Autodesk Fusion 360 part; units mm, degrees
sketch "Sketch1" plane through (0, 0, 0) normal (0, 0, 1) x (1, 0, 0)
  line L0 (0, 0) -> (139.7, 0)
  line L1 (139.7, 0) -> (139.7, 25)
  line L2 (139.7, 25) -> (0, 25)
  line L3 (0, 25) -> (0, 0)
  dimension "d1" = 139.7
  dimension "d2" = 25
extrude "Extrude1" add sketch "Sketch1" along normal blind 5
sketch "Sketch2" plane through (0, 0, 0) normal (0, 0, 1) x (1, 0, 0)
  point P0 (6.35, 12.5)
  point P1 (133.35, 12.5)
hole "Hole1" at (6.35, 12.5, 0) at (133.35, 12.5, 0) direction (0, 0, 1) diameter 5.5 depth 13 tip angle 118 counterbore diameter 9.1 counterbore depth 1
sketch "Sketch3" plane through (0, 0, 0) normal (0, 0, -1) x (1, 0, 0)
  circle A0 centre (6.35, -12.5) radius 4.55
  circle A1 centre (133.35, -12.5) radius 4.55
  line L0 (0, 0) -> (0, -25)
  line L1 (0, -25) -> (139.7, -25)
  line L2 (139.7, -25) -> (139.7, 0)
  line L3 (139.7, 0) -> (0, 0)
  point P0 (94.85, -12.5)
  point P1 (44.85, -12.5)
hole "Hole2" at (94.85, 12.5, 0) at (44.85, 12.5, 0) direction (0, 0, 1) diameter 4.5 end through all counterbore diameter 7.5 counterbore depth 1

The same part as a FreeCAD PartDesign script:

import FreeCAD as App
import Part
import Sketcher

V = App.Vector
Q = App.Units.Quantity


def add_polygon(sketch, points):
    """Adds a closed chain of lines whose ends are joined by coincident constraints."""
    first, n = sketch.GeometryCount, len(points)
    for a, b in zip(points, points[1:] + points[:1]):
        sketch.addGeometry(Part.LineSegment(App.Vector(*a, 0), App.Vector(*b, 0)), False)
    for i in range(n):
        sketch.addConstraint(Sketcher.Constraint("Coincident", first + i, 2, first + (i + 1) % n, 1))

doc = App.newDocument("Part")
params = doc.addObject("Spreadsheet::Sheet", "Params")
for row, (alias, value) in enumerate([
    ("sketch1_height", "25 mm"),
    ("sketch1_width", "139.7 mm"),
    ("pad1_length", "5 mm"),
    ("sketch2_diameter", "5.5 mm"),
    ("hole_diameter", "5.5 mm"),
    ("hole_depth", "13 mm"),
    ("hole_cbore_diameter", "9.1 mm"),
    ("hole_cbore_depth", "1 mm"),
    ("sketch3_diameter", "4.5 mm"),
    ("hole2_diameter", "4.5 mm"),
    ("hole2_cbore_diameter", "7.5 mm"),
    ("hole2_cbore_depth", "1 mm"),
], start=1):
    params.set(f"A{row}", alias)
    params.set(f"B{row}", "=" + value)
    params.setAlias(f"B{row}", alias)

body = doc.addObject("PartDesign::Body", "Body")

sketch1 = body.newObject("Sketcher::SketchObject", "Sketch")
sketch1.AttachmentSupport = (doc.getObject("XY_Plane"), [""])
sketch1.MapMode = "FlatFace"
add_polygon(sketch1, [(0, 25), (0, 0), (140, 0), (140, 25)])
sketch1.addConstraint([
    Sketcher.Constraint("Vertical", 0),
    Sketcher.Constraint("Horizontal", 1),
    Sketcher.Constraint("Vertical", 2),
    Sketcher.Constraint("Horizontal", 3),
    Sketcher.Constraint("Coincident", 0, 2, -1, 1),
    Sketcher.Constraint("DistanceY", 0, 2, 0, 1, Q("25 mm")),
    Sketcher.Constraint("DistanceX", 1, 1, 1, 2, Q("139.7 mm")),
])
sketch1.setExpression("Constraints[9]", "Params.sketch1_height")
sketch1.setExpression("Constraints[10]", "Params.sketch1_width")
pad1 = body.newObject("PartDesign::Pad", "Pad")
pad1.Profile = sketch1
pad1.setExpression("Length", "Params.pad1_length")

sketch2 = body.newObject("Sketcher::SketchObject", "Sketch001")
sketch2.AttachmentSupport = (doc.getObject("XY_Plane"), [""])
sketch2.MapMode = "FlatFace"
sketch2.addGeometry([
    Part.Circle(V(6.3, 12.5, 0), V(0, 0, 1), 2.8),
    Part.Circle(V(133.3, 12.5, 0), V(0, 0, 1), 2.8),
], False)
sketch2.addConstraint([
    Sketcher.Constraint("Equal", 0, 1),
    Sketcher.Constraint("Horizontal", 0, 3, 1, 3),
    Sketcher.Constraint("Diameter", 0, Q("5.5 mm")),
    Sketcher.Constraint("DistanceX", 0, 3, 1, 3, Q("127 mm")),
    Sketcher.Constraint("DistanceY", -1, 1, 0, 3, Q("12.5 mm")),
    Sketcher.Constraint("DistanceX", -1, 1, 0, 3, Q("6.35 mm")),
])
sketch2.setExpression("Constraints[2]", "Params.sketch2_diameter")
doc.recompute()
hole = body.newObject("PartDesign::Hole", "Hole")
hole.Profile = sketch2
hole.ThreadType = "None"
hole.setExpression("Diameter", "Params.hole_diameter")
hole.DepthType = "Dimension"
hole.setExpression("Depth", "Params.hole_depth")
hole.DrillPoint = "Angled"
hole.DrillPointAngle = 118
hole.HoleCutType = "Counterbore"
hole.setExpression("HoleCutDiameter", "Params.hole_cbore_diameter")
hole.setExpression("HoleCutDepth", "Params.hole_cbore_depth")
hole.Reversed = True

sketch3 = body.newObject("Sketcher::SketchObject", "Sketch002")
sketch3.AttachmentSupport = (doc.getObject("XY_Plane"), [""])
sketch3.MapMode = "FlatFace"
sketch3.addGeometry([
    Part.Circle(V(94.8, 12.5, 0), V(0, 0, 1), 2.2),
    Part.Circle(V(44.9, 12.5, 0), V(0, 0, 1), 2.2),
], False)
sketch3.addConstraint([
    Sketcher.Constraint("Equal", 0, 1),
    Sketcher.Constraint("Horizontal", 0, 3, 1, 3),
    Sketcher.Constraint("Diameter", 0, Q("4.5 mm")),
    Sketcher.Constraint("DistanceX", 1, 3, 0, 3, Q("50 mm")),
    Sketcher.Constraint("DistanceY", -1, 1, 0, 3, Q("12.5 mm")),
    Sketcher.Constraint("DistanceX", -1, 1, 0, 3, Q("94.85 mm")),
])
sketch3.setExpression("Constraints[2]", "Params.sketch3_diameter")
doc.recompute()
hole2 = body.newObject("PartDesign::Hole", "Hole001")
hole2.Profile = sketch3
hole2.ThreadType = "None"
hole2.setExpression("Diameter", "Params.hole2_diameter")
hole2.DepthType = "ThroughAll"
hole2.HoleCutType = "Counterbore"
hole2.setExpression("HoleCutDiameter", "Params.hole2_cbore_diameter")
hole2.setExpression("HoleCutDepth", "Params.hole2_cbore_depth")
hole2.Reversed = True

doc.recompute()
